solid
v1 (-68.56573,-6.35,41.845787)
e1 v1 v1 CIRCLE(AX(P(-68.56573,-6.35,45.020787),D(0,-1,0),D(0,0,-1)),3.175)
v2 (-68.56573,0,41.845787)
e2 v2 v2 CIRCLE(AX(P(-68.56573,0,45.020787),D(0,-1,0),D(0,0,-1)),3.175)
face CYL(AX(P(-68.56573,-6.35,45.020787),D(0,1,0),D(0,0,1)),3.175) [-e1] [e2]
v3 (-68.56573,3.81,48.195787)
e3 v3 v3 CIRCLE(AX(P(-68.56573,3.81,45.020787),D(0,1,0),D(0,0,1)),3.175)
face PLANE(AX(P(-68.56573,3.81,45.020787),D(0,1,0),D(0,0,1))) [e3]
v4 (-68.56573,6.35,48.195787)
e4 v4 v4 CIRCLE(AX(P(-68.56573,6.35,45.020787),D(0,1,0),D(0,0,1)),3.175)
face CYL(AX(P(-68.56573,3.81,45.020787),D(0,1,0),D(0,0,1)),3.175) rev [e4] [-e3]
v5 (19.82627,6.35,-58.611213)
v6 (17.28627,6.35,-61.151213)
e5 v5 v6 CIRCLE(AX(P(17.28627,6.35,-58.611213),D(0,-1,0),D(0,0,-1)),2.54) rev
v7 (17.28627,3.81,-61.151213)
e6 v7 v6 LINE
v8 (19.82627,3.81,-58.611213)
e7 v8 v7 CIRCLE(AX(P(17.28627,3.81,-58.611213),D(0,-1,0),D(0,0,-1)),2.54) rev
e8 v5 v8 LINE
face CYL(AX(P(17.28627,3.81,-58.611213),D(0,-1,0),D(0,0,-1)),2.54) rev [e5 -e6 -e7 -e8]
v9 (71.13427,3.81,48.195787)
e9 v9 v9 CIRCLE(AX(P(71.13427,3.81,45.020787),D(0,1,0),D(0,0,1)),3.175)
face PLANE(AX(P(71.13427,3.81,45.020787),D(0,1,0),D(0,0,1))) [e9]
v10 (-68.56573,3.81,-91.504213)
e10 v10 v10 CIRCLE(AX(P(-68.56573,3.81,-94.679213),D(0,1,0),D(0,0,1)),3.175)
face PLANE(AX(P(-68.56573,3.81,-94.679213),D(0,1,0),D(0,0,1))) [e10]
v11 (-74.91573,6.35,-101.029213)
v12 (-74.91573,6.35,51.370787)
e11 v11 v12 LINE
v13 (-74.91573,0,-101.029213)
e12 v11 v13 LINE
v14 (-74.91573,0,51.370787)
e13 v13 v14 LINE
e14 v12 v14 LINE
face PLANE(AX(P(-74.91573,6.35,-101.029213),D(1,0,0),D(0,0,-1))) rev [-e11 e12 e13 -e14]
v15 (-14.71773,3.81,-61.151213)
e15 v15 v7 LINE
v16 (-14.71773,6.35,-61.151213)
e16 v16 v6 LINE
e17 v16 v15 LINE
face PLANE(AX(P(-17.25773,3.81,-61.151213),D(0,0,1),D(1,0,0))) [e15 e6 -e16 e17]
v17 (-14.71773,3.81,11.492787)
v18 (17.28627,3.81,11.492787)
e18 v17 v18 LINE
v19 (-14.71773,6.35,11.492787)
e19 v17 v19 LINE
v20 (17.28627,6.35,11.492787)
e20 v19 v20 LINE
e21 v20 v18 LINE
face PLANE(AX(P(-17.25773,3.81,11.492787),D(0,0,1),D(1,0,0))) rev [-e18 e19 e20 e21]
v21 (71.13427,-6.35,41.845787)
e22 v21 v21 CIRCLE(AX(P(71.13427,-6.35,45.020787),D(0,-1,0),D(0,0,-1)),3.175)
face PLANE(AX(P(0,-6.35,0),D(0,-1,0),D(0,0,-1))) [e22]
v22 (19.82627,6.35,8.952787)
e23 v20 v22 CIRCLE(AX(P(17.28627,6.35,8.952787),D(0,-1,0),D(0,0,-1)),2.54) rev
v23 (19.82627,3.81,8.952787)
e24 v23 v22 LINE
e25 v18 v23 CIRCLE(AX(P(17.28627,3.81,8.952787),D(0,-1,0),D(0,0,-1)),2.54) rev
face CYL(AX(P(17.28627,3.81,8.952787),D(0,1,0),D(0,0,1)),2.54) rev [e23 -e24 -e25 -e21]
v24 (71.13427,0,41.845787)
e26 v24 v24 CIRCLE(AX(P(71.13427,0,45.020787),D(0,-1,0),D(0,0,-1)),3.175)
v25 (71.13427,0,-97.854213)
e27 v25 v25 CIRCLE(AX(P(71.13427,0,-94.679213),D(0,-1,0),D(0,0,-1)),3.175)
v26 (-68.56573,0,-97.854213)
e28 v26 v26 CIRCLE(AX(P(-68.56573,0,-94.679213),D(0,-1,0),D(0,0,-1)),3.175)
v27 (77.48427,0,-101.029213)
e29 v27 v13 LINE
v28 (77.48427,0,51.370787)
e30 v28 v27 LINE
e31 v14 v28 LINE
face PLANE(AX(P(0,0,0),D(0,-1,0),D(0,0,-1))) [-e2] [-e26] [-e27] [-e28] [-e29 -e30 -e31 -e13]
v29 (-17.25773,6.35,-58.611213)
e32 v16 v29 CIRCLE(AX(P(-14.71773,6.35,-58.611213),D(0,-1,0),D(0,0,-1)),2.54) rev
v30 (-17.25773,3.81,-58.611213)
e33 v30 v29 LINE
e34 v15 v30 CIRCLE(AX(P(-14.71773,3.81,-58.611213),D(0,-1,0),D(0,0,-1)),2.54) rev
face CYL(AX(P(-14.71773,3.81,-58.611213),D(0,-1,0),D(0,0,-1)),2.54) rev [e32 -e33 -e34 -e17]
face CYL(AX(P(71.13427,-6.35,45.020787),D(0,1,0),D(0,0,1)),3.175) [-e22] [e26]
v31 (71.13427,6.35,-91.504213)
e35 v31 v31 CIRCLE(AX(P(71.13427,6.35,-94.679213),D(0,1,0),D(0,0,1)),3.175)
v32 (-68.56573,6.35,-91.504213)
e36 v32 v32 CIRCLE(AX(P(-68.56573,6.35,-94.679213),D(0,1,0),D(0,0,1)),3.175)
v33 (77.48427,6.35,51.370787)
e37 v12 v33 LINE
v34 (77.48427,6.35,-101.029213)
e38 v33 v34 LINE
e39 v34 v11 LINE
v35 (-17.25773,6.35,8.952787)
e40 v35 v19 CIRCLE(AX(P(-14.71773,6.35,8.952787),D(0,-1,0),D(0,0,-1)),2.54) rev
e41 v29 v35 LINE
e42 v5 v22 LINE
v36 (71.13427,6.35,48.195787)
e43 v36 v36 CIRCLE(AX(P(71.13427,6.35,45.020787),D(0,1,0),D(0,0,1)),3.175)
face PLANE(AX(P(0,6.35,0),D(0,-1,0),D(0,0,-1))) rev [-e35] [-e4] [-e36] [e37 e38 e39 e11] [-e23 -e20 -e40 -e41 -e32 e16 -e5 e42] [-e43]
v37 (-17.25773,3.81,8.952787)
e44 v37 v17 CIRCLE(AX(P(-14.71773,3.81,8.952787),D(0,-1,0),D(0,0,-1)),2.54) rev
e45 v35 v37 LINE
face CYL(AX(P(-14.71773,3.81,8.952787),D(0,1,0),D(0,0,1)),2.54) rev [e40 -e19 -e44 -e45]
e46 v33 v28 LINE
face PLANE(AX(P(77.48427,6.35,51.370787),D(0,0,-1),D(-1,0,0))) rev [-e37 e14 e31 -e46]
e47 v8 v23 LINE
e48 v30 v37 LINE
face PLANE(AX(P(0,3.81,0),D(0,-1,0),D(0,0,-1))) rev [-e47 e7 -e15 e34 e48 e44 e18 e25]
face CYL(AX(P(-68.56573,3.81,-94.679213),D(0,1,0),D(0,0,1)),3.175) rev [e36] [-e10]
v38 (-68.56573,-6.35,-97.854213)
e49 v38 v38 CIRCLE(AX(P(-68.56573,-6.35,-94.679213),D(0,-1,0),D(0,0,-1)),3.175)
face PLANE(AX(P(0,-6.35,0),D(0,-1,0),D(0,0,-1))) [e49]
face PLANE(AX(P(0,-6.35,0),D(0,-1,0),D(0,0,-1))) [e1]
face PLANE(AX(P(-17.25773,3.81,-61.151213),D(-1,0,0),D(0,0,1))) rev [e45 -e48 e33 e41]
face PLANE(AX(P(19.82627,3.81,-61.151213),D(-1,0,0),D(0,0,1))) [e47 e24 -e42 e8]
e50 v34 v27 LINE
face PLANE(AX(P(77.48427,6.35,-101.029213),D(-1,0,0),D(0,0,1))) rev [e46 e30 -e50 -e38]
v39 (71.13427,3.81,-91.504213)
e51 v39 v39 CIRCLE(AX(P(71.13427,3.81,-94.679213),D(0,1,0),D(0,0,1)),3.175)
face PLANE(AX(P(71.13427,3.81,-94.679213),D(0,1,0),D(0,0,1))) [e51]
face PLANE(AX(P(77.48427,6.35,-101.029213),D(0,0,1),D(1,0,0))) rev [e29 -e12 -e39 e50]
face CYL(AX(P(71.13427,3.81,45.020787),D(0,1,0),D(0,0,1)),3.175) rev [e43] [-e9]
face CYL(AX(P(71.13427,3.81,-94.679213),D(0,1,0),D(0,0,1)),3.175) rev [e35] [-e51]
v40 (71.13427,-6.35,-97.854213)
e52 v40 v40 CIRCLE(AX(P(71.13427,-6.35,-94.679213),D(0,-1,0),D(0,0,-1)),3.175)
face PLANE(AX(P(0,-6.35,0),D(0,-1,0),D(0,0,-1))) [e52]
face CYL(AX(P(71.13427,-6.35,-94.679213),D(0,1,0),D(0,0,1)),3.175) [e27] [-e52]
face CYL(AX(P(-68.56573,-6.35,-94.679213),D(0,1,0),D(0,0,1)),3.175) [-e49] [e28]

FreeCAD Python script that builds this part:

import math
import FreeCAD as App
import Part
import Sketcher
from FreeCAD import Vector
Q = App.Units.Quantity


def edges_at(feature, points):
    """Names of the edges that pass closest to the given points."""
    edges = feature.Shape.Edges
    near = lambda p: min(range(len(edges)), key=lambda i: edges[i].distToShape(Part.Vertex(*p))[0])
    return sorted({f"Edge{near(p) + 1}" for p in points})


def add_polygon(sketch, points):
    """Adds a closed chain of lines whose ends are joined by coincident constraints."""
    first, n = sketch.GeometryCount, len(points)
    for a, b in zip(points, points[1:] + points[:1]):
        sketch.addGeometry(Part.LineSegment(App.Vector(*a, 0), App.Vector(*b, 0)), False)
    for i in range(n):
        sketch.addConstraint(Sketcher.Constraint("Coincident", first + i, 2, first + (i + 1) % n, 1))

doc = App.newDocument("Part")
body = doc.addObject("PartDesign::Body", "Body")

# Sketch on XZ plane
sketch1 = body.newObject("Sketcher::SketchObject", "Sketch")
sketch1.AttachmentSupport = (doc.getObject("XZ_Plane"), [""])
sketch1.MapMode = "FlatFace"
add_polygon(sketch1, [(-74.91573, -101.029213), (-74.91573, 51.370787), (77.48427, 51.370787), (77.48427, -101.029213)])  # lines 0-3
sketch1.addConstraint([
    Sketcher.Constraint("Vertical", 0),
    Sketcher.Constraint("Horizontal", 1),
    Sketcher.Constraint("Vertical", 2),
    Sketcher.Constraint("Horizontal", 3),
    Sketcher.Constraint("Equal", 3, 0),
    Sketcher.Constraint("DistanceX", 1, 1, 1, 2, Q("6 in")),
    Sketcher.Constraint("DistanceX", 0, 2, -1, 1, 74.91573),
    Sketcher.Constraint("DistanceY", -1, 1, 0, 2, 51.370787),
])
pad1 = body.newObject("PartDesign::Pad", "Pad")
pad1.Profile = sketch1
pad1.Length = Q("0.25 in")
pad1.Reversed = True

# Sketch on XZ plane
sketch2 = body.newObject("Sketcher::SketchObject", "Sketch001")
sketch2.AttachmentSupport = (doc.getObject("XZ_Plane"), [""])
sketch2.MapMode = "FlatFace"
sketch2.addGeometry([
    Part.ArcOfCircle(Part.Circle(Vector(71.13427, -94.679213, 0), Vector(0, 0, 1), 3.175), math.radians(-90), math.radians(90)),  # 0
    Part.ArcOfCircle(Part.Circle(Vector(71.13427, -94.679213, 0), Vector(0, 0, 1), 3.175), math.radians(90), math.radians(180)),  # 1
    Part.ArcOfCircle(Part.Circle(Vector(71.13427, -94.679213, 0), Vector(0, 0, 1), 3.175), math.radians(-180), math.radians(-90)),  # 2
    Part.ArcOfCircle(Part.Circle(Vector(-68.56573, -94.679213, 0), Vector(0, 0, 1), 3.175), math.radians(-90), math.radians(90)),  # 3
    Part.ArcOfCircle(Part.Circle(Vector(-68.56573, -94.679213, 0), Vector(0, 0, 1), 3.175), math.radians(90), math.radians(180)),  # 4
    Part.ArcOfCircle(Part.Circle(Vector(-68.56573, -94.679213, 0), Vector(0, 0, 1), 3.175), math.radians(-180), math.radians(-90)),  # 5
    Part.ArcOfCircle(Part.Circle(Vector(-68.56573, 45.020787, 0), Vector(0, 0, 1), 3.175), math.radians(-90), math.radians(90)),  # 6
    Part.ArcOfCircle(Part.Circle(Vector(-68.56573, 45.020787, 0), Vector(0, 0, 1), 3.175), math.radians(90), math.radians(180)),  # 7
    Part.ArcOfCircle(Part.Circle(Vector(-68.56573, 45.020787, 0), Vector(0, 0, 1), 3.175), math.radians(-180), math.radians(-90)),  # 8
    Part.ArcOfCircle(Part.Circle(Vector(71.13427, 45.020787, 0), Vector(0, 0, 1), 3.175), math.radians(-90), math.radians(90)),  # 9
    Part.ArcOfCircle(Part.Circle(Vector(71.13427, 45.020787, 0), Vector(0, 0, 1), 3.175), math.radians(90), math.radians(180)),  # 10
    Part.ArcOfCircle(Part.Circle(Vector(71.13427, 45.020787, 0), Vector(0, 0, 1), 3.175), math.radians(-180), math.radians(-90)),  # 11
], False)
sketch2.addConstraint([
    Sketcher.Constraint("Tangent", 0, 2, 1, 1),
    Sketcher.Constraint("Tangent", 1, 2, 2, 1),
    Sketcher.Constraint("Tangent", 2, 2, 0, 1),
    Sketcher.Constraint("Tangent", 3, 2, 4, 1),
    Sketcher.Constraint("Tangent", 4, 2, 5, 1),
    Sketcher.Constraint("Tangent", 5, 2, 3, 1),
    Sketcher.Constraint("Tangent", 6, 2, 7, 1),
    Sketcher.Constraint("Tangent", 7, 2, 8, 1),
    Sketcher.Constraint("Tangent", 8, 2, 6, 1),
    Sketcher.Constraint("Tangent", 9, 2, 10, 1),
    Sketcher.Constraint("Tangent", 10, 2, 11, 1),
    Sketcher.Constraint("Tangent", 11, 2, 9, 1),
    Sketcher.Constraint("Equal", 2, 3),
    Sketcher.Constraint("Equal", 5, 6),
    Sketcher.Constraint("Equal", 8, 9),
    Sketcher.Constraint("Horizontal", 2, 3, 3, 3),
    Sketcher.Constraint("Horizontal", 8, 3, 9, 3),
    Sketcher.Constraint("Horizontal", 5, 3, 1, 2),
    Sketcher.Constraint("Horizontal", 1, 2, 4, 2),
    Sketcher.Constraint("Horizontal", 11, 3, 7, 2),
    Sketcher.Constraint("Horizontal", 7, 2, 10, 2),
    Sketcher.Constraint("Vertical", 5, 3, 6, 3),
    Sketcher.Constraint("Vertical", 2, 3, 9, 3),
    Sketcher.Constraint("Vertical", 11, 3, 0, 2),
    Sketcher.Constraint("Vertical", 0, 2, 2, 2),
    Sketcher.Constraint("Vertical", 8, 3, 3, 2),
    Sketcher.Constraint("Vertical", 3, 2, 5, 2),
    Sketcher.Constraint("Vertical", 5, 2, 6, 2),
    Sketcher.Constraint("Vertical", 6, 2, 8, 2),
    Sketcher.Constraint("Vertical", 2, 2, 9, 2),
    Sketcher.Constraint("Vertical", 9, 2, 11, 2),
    Sketcher.Constraint("Radius", 0, Q("0.125 in")),
    Sketcher.Constraint("DistanceX", 3, 3, 0, 3, Q("5.5 in")),
    Sketcher.Constraint("DistanceY", 5, 3, 6, 3, Q("5.5 in")),
    Sketcher.Constraint("DistanceX", -1, 1, 0, 3, 71.13427),
    Sketcher.Constraint("DistanceY", 0, 3, -1, 1, 94.679213),
])
pad2 = body.newObject("PartDesign::Pad", "Pad001")
pad2.Profile = sketch2
pad2.Length = Q("0.25 in")

# Sketch on XZ plane
sketch3 = body.newObject("Sketcher::SketchObject", "Sketch002")
sketch3.AttachmentSupport = (doc.getObject("XZ_Plane"), [""])
sketch3.MapMode = "FlatFace"
sketch3.AttachmentOffset = App.Placement(Vector(0, 0, -0.25 * 25.4), App.Rotation())
sketch3.addGeometry([
    Part.Circle(Vector(-68.56573, -94.679213, 0), Vector(0, 0, 1), 3.175),
    Part.Circle(Vector(71.13427, -94.679213, 0), Vector(0, 0, 1), 3.175),
    Part.Circle(Vector(-68.56573, 45.020787, 0), Vector(0, 0, 1), 3.175),
    Part.Circle(Vector(71.13427, 45.020787, 0), Vector(0, 0, 1), 3.175),
], False)
sketch3.addConstraint([
    Sketcher.Constraint("Equal", 0, 1),
    Sketcher.Constraint("Equal", 1, 2),
    Sketcher.Constraint("Equal", 2, 3),
    Sketcher.Constraint("Horizontal", 0, 3, 1, 3),
    Sketcher.Constraint("Horizontal", 2, 3, 3, 3),
    Sketcher.Constraint("Vertical", 0, 3, 2, 3),
    Sketcher.Constraint("Vertical", 1, 3, 3, 3),
    Sketcher.Constraint("Diameter", 0, Q("0.25 in")),
    Sketcher.Constraint("DistanceX", 0, 3, 1, 3, Q("5.5 in")),
    Sketcher.Constraint("DistanceY", 0, 3, 2, 3, Q("5.5 in")),
    Sketcher.Constraint("DistanceX", 0, 3, -1, 1, 68.56573),
    Sketcher.Constraint("DistanceY", 0, 3, -1, 1, 94.679213),
])
pocket1 = body.newObject("PartDesign::Pocket", "Pocket")
pocket1.Profile = sketch3
pocket1.Length = Q("0.1 in")
pocket1.Reversed = True

# Sketch on XZ plane
sketch4 = body.newObject("Sketcher::SketchObject", "Sketch003")
sketch4.AttachmentSupport = (doc.getObject("XZ_Plane"), [""])
sketch4.MapMode = "FlatFace"
sketch4.AttachmentOffset = App.Placement(Vector(0, 0, -0.25 * 25.4), App.Rotation())
add_polygon(sketch4, [(-17.25773, -61.151213), (-17.25773, 11.492787), (19.82627, 11.492787), (19.82627, -61.151213)])  # lines 0-3
sketch4.addConstraint([
    Sketcher.Constraint("Vertical", 0),
    Sketcher.Constraint("Horizontal", 1),
    Sketcher.Constraint("Vertical", 2),
    Sketcher.Constraint("Horizontal", 3),
    Sketcher.Constraint("DistanceX", 1, 1, 1, 2, Q("1.46 in")),
    Sketcher.Constraint("DistanceY", 0, 1, 0, 2, Q("2.86 in")),
    Sketcher.Constraint("DistanceX", 0, 2, -1, 1, 17.25773),
    Sketcher.Constraint("DistanceY", -1, 1, 0, 2, 11.492787),
])
pocket2 = body.newObject("PartDesign::Pocket", "Pocket001")
pocket2.Profile = sketch4
pocket2.Length = Q("0.1 in")
pocket2.Reversed = True
doc.recompute()

fillet = body.newObject("PartDesign::Fillet", "Fillet")
fillet.Base = (pocket2, edges_at(pocket2, [(-17.258, 5.08, -61.151)]))
fillet.Radius = Q("0.1 in")
doc.recompute()

fillet2 = body.newObject("PartDesign::Fillet", "Fillet001")
fillet2.Base = (fillet, edges_at(fillet, [(19.826, 5.08, -61.151)]))
fillet2.Radius = Q("0.1 in")
doc.recompute()

fillet3 = body.newObject("PartDesign::Fillet", "Fillet002")
fillet3.Base = (fillet2, edges_at(fillet2, [(-17.258, 5.08, 11.493)]))
fillet3.Radius = Q("0.1 in")
doc.recompute()

fillet4 = body.newObject("PartDesign::Fillet", "Fillet003")
fillet4.Base = (fillet3, edges_at(fillet3, [(19.826, 5.08, 11.493)]))
fillet4.Radius = Q("0.1 in")

doc.recompute()
